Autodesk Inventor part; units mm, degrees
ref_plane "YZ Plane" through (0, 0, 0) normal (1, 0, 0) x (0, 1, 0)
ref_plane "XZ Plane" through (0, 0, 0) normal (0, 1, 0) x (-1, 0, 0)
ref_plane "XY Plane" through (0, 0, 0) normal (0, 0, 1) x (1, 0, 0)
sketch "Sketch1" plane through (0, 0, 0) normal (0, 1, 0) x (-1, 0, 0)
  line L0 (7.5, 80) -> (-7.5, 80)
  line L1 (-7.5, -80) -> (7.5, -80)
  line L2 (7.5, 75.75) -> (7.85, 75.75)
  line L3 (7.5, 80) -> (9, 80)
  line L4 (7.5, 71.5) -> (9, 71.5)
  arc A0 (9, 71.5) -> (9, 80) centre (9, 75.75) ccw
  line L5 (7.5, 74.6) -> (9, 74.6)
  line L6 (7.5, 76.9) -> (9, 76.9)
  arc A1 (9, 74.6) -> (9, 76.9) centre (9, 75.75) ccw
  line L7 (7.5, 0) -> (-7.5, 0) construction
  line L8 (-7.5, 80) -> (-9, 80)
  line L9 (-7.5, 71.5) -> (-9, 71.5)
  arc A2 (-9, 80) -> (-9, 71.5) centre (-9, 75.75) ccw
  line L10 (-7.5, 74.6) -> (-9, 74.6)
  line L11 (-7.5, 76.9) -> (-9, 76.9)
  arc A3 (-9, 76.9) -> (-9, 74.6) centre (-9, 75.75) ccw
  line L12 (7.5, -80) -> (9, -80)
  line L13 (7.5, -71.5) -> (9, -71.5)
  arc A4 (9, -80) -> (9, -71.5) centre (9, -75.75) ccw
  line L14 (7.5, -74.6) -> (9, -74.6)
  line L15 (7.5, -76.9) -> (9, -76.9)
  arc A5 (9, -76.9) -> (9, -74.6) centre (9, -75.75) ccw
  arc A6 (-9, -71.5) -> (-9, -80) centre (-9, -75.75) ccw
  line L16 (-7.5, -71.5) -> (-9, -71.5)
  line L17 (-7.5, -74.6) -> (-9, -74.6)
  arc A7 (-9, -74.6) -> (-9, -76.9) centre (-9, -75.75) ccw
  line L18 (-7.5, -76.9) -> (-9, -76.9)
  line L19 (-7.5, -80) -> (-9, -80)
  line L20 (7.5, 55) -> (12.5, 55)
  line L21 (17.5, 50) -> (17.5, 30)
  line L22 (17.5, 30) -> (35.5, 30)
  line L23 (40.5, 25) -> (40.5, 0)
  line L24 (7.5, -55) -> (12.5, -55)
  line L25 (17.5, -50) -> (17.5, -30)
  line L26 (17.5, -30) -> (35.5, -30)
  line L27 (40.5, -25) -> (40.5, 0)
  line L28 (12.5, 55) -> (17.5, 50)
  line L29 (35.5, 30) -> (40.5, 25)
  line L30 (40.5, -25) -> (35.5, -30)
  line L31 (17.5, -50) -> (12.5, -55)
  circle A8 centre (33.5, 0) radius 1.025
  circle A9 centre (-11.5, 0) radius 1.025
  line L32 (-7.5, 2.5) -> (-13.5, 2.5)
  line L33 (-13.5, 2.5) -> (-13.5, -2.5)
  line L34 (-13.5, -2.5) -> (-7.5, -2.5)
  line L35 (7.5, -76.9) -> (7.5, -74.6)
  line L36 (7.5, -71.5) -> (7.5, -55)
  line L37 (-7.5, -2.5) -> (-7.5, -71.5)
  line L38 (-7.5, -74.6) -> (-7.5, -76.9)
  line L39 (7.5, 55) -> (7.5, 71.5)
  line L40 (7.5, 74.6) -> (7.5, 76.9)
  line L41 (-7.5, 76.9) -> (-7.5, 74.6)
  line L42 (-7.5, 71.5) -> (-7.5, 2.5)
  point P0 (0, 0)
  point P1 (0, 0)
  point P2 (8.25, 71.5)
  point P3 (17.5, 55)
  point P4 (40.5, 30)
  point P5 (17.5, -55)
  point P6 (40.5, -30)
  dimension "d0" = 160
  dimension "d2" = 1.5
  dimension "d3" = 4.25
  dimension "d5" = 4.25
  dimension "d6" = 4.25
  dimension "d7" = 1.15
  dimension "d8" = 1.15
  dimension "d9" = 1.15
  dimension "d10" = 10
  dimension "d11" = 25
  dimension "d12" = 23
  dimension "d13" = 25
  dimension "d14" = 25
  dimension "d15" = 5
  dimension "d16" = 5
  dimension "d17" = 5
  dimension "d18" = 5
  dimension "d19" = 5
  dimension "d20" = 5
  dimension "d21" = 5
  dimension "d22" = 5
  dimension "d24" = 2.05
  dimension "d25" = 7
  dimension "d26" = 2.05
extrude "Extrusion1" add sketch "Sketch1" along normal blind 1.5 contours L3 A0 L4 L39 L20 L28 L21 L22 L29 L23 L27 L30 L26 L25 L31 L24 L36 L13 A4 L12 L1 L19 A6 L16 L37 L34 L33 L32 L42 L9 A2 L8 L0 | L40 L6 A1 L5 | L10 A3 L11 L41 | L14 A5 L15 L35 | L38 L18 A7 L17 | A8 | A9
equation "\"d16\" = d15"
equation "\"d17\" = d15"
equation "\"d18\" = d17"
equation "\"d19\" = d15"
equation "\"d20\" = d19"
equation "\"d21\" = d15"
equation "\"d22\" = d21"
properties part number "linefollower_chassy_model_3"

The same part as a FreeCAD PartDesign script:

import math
import FreeCAD as App
import Part
import Sketcher

V = App.Vector

doc = App.newDocument("Part")
body = doc.addObject("PartDesign::Body", "Body")

# Sketch on XZ plane
sketch1 = doc.addObject("Sketcher::SketchObject", "Sketch")
body.addObject(sketch1)
sketch1.AttachmentSupport = (doc.XZ_Plane, [""])
sketch1.MapMode = "FlatFace"
sketch1.addGeometry(Part.LineSegment(V(-9, 80, 0), V(9, 80, 0)), False)
sketch1.addGeometry(Part.ArcOfCircle(Part.Circle(V(9, 75.8, 0), V(0, 0, 1), 4.2), math.radians(-90), math.radians(90)), False)
sketch1.addGeometry(Part.LineSegment(V(9, 71.5, 0), V(7.5, 71.5, 0)), False)
sketch1.addGeometry(Part.LineSegment(V(7.5, 71.5, 0), V(7.5, 2.5, 0)), False)
sketch1.addGeometry(Part.LineSegment(V(7.5, 2.5, 0), V(13.5, 2.5, 0)), False)
sketch1.addGeometry(Part.LineSegment(V(13.5, 2.5, 0), V(13.5, -2.5, 0)), False)
sketch1.addGeometry(Part.LineSegment(V(13.5, -2.5, 0), V(7.5, -2.5, 0)), False)
sketch1.addGeometry(Part.LineSegment(V(7.5, -2.5, 0), V(7.5, -71.5, 0)), False)
sketch1.addGeometry(Part.LineSegment(V(7.5, -71.5, 0), V(9, -71.5, 0)), False)
sketch1.addGeometry(Part.ArcOfCircle(Part.Circle(V(9, -75.8, 0), V(0, 0, 1), 4.2), math.radians(-90), math.radians(90)), False)
sketch1.addGeometry(Part.LineSegment(V(9, -80, 0), V(-9, -80, 0)), False)
sketch1.addGeometry(Part.ArcOfCircle(Part.Circle(V(-9, -75.8, 0), V(0, 0, 1), 4.2), math.radians(90), math.radians(270)), False)
sketch1.addGeometry(Part.LineSegment(V(-9, -71.5, 0), V(-7.5, -71.5, 0)), False)
sketch1.addGeometry(Part.LineSegment(V(-7.5, -71.5, 0), V(-7.5, -55, 0)), False)
sketch1.addGeometry(Part.LineSegment(V(-7.5, -55, 0), V(-12.5, -55, 0)), False)
sketch1.addGeometry(Part.LineSegment(V(-12.5, -55, 0), V(-17.5, -50, 0)), False)
sketch1.addGeometry(Part.LineSegment(V(-17.5, -50, 0), V(-17.5, -30, 0)), False)
sketch1.addGeometry(Part.LineSegment(V(-17.5, -30, 0), V(-35.5, -30, 0)), False)
sketch1.addGeometry(Part.LineSegment(V(-35.5, -30, 0), V(-40.5, -25, 0)), False)
sketch1.addGeometry(Part.LineSegment(V(-40.5, -25, 0), V(-40.5, 25, 0)), False)
sketch1.addGeometry(Part.LineSegment(V(-40.5, 25, 0), V(-35.5, 30, 0)), False)
sketch1.addGeometry(Part.LineSegment(V(-35.5, 30, 0), V(-17.5, 30, 0)), False)
sketch1.addGeometry(Part.LineSegment(V(-17.5, 30, 0), V(-17.5, 50, 0)), False)
sketch1.addGeometry(Part.LineSegment(V(-17.5, 50, 0), V(-12.5, 55, 0)), False)
sketch1.addGeometry(Part.LineSegment(V(-12.5, 55, 0), V(-7.5, 55, 0)), False)
sketch1.addGeometry(Part.LineSegment(V(-7.5, 55, 0), V(-7.5, 71.5, 0)), False)
sketch1.addGeometry(Part.LineSegment(V(-7.5, 71.5, 0), V(-9, 71.5, 0)), False)
sketch1.addGeometry(Part.ArcOfCircle(Part.Circle(V(-9, 75.8, 0), V(0, 0, 1), 4.2), math.radians(90), math.radians(270)), False)
sketch1.addConstraint(Sketcher.Constraint("Tangent", 0, 2, 1, 2))
sketch1.addConstraint(Sketcher.Constraint("Tangent", 1, 1, 2, 1))
sketch1.addConstraint(Sketcher.Constraint("Coincident", 2, 2, 3, 1))
sketch1.addConstraint(Sketcher.Constraint("Coincident", 3, 2, 4, 1))
sketch1.addConstraint(Sketcher.Constraint("Coincident", 4, 2, 5, 1))
sketch1.addConstraint(Sketcher.Constraint("Coincident", 5, 2, 6, 1))
sketch1.addConstraint(Sketcher.Constraint("Coincident", 6, 2, 7, 1))
sketch1.addConstraint(Sketcher.Constraint("Coincident", 7, 2, 8, 1))
sketch1.addConstraint(Sketcher.Constraint("Tangent", 8, 2, 9, 2))
sketch1.addConstraint(Sketcher.Constraint("Tangent", 9, 1, 10, 1))
sketch1.addConstraint(Sketcher.Constraint("Tangent", 10, 2, 11, 2))
sketch1.addConstraint(Sketcher.Constraint("Tangent", 11, 1, 12, 1))
sketch1.addConstraint(Sketcher.Constraint("Coincident", 12, 2, 13, 1))
sketch1.addConstraint(Sketcher.Constraint("Coincident", 13, 2, 14, 1))
sketch1.addConstraint(Sketcher.Constraint("Coincident", 14, 2, 15, 1))
sketch1.addConstraint(Sketcher.Constraint("Coincident", 15, 2, 16, 1))
sketch1.addConstraint(Sketcher.Constraint("Coincident", 16, 2, 17, 1))
sketch1.addConstraint(Sketcher.Constraint("Coincident", 17, 2, 18, 1))
sketch1.addConstraint(Sketcher.Constraint("Coincident", 18, 2, 19, 1))
sketch1.addConstraint(Sketcher.Constraint("Coincident", 19, 2, 20, 1))
sketch1.addConstraint(Sketcher.Constraint("Coincident", 20, 2, 21, 1))
sketch1.addConstraint(Sketcher.Constraint("Coincident", 21, 2, 22, 1))
sketch1.addConstraint(Sketcher.Constraint("Coincident", 22, 2, 23, 1))
sketch1.addConstraint(Sketcher.Constraint("Coincident", 23, 2, 24, 1))
sketch1.addConstraint(Sketcher.Constraint("Coincident", 24, 2, 25, 1))
sketch1.addConstraint(Sketcher.Constraint("Coincident", 25, 2, 26, 1))
sketch1.addConstraint(Sketcher.Constraint("Tangent", 26, 2, 27, 2))
sketch1.addConstraint(Sketcher.Constraint("Tangent", 27, 1, 0, 1))
sketch1.addConstraint(Sketcher.Constraint("Horizontal", 0))
sketch1.addConstraint(Sketcher.Constraint("Horizontal", 2))
sketch1.addConstraint(Sketcher.Constraint("Vertical", 3))
sketch1.addConstraint(Sketcher.Constraint("Horizontal", 4))
sketch1.addConstraint(Sketcher.Constraint("Vertical", 5))
sketch1.addConstraint(Sketcher.Constraint("Horizontal", 6))
sketch1.addConstraint(Sketcher.Constraint("Vertical", 7))
sketch1.addConstraint(Sketcher.Constraint("Horizontal", 8))
sketch1.addConstraint(Sketcher.Constraint("Horizontal", 10))
sketch1.addConstraint(Sketcher.Constraint("Horizontal", 12))
sketch1.addConstraint(Sketcher.Constraint("Vertical", 13))
sketch1.addConstraint(Sketcher.Constraint("Horizontal", 14))
sketch1.addConstraint(Sketcher.Constraint("Vertical", 16))
sketch1.addConstraint(Sketcher.Constraint("Horizontal", 17))
sketch1.addConstraint(Sketcher.Constraint("Vertical", 19))
sketch1.addConstraint(Sketcher.Constraint("Horizontal", 21))
sketch1.addConstraint(Sketcher.Constraint("Vertical", 22))
sketch1.addConstraint(Sketcher.Constraint("Horizontal", 24))
sketch1.addConstraint(Sketcher.Constraint("Vertical", 25))
sketch1.addConstraint(Sketcher.Constraint("Horizontal", 26))
sketch1.addConstraint(Sketcher.Constraint("Equal", 1, 9))
sketch1.addConstraint(Sketcher.Constraint("Equal", 9, 11))
sketch1.addConstraint(Sketcher.Constraint("Equal", 11, 27))
sketch1.addConstraint(Sketcher.Constraint("Symmetric", 1, 3, 11, 3, -1, 1))
sketch1.addConstraint(Sketcher.Constraint("Symmetric", 3, 2, 6, 2, -1))
sketch1.addConstraint(Sketcher.Constraint("Symmetric", 17, 2, 20, 2, -1))
sketch1.addConstraint(Sketcher.Constraint("Symmetric", 15, 2, 22, 2, -1))
sketch1.addConstraint(Sketcher.Constraint("Symmetric", 14, 2, 23, 2, -1))
sketch1.addConstraint(Sketcher.Constraint("Parallel", 15, 18))
sketch1.addConstraint(Sketcher.Constraint("Perpendicular", 18, 20))
sketch1.addConstraint(Sketcher.Constraint("Parallel", 20, 23))
sketch1.addConstraint(Sketcher.Constraint("Vertical", 1, 3, 9, 3))
sketch1.addConstraint(Sketcher.Constraint("Vertical", 11, 3, 27, 3))
sketch1.addConstraint(Sketcher.Constraint("Vertical", 13, 2, 24, 2))
sketch1.addConstraint(Sketcher.Constraint("Equal", 8, 12))
sketch1.addConstraint(Sketcher.Constraint("Equal", 10, 17))
sketch1.addConstraint(Sketcher.Constraint("Equal", 24, 5))
sketch1.addConstraint(Sketcher.Constraint("Equal", 15, 18))
sketch1.addConstraint(Sketcher.Constraint("DistanceX", 14, 2, 14, 1, 5.0))
sketch1.addConstraint(Sketcher.Constraint("Radius", 1, 4.25))
sketch1.addConstraint(Sketcher.Constraint("DistanceX", 2, 2, 2, 1, 1.5))
sketch1.addConstraint(Sketcher.Constraint("DistanceY", 18, 2, -1, 1, 25.0))
sketch1.addConstraint(Sketcher.Constraint("DistanceY", 10, 2, 14, 2, 25.0))
sketch1.addConstraint(Sketcher.Constraint("DistanceX", 15, 2, 14, 2, 5.0))
sketch1.addConstraint(Sketcher.Constraint("DistanceY", 14, 2, 16, 2, 25.0))
sketch1.addConstraint(Sketcher.Constraint("DistanceX", 16, 2, 6, 2, 25.0))
sketch1.addConstraint(Sketcher.Constraint("DistanceX", 4, 1, 4, 2, 6.0))
pad1 = doc.addObject("PartDesign::Pad", "Pad")
body.addObject(pad1)
pad1.Profile = sketch1
pad1.Length = 1.5
pad1.Reversed = True

doc.recompute()
